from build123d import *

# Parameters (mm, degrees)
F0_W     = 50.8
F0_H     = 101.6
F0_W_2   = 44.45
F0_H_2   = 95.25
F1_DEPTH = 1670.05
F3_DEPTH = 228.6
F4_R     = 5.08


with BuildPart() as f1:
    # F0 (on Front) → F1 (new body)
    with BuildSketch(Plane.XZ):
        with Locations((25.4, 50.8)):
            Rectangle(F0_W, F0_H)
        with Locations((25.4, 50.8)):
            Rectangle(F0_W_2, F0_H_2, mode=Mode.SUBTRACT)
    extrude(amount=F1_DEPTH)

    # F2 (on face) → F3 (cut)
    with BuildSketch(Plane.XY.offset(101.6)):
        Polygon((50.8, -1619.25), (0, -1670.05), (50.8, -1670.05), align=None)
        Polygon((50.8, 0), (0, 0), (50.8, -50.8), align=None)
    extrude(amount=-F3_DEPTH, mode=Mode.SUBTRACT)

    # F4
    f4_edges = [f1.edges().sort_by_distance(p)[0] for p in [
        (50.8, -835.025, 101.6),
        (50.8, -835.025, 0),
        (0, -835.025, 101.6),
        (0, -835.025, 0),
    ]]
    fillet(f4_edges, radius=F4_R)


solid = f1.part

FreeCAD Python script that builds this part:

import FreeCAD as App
import Part
import Sketcher
from FreeCAD import Vector
Q = App.Units.Quantity


def edges_at(feature, points):
    """Names of the edges that pass closest to the given points."""
    edges = feature.Shape.Edges
    near = lambda p: min(range(len(edges)), key=lambda i: edges[i].distToShape(Part.Vertex(*p))[0])
    return sorted({f"Edge{near(p) + 1}" for p in points})


def add_polygon(sketch, points):
    """Adds a closed chain of lines whose ends are joined by coincident constraints."""
    first, n = sketch.GeometryCount, len(points)
    for a, b in zip(points, points[1:] + points[:1]):
        sketch.addGeometry(Part.LineSegment(App.Vector(*a, 0), App.Vector(*b, 0)), False)
    for i in range(n):
        sketch.addConstraint(Sketcher.Constraint("Coincident", first + i, 2, first + (i + 1) % n, 1))

doc = App.newDocument("Part")
body = doc.addObject("PartDesign::Body", "Body")

sketch1 = body.newObject("Sketcher::SketchObject", "Sketch")
sketch1.AttachmentSupport = (doc.getObject("XZ_Plane"), [""])
sketch1.MapMode = "FlatFace"
add_polygon(sketch1, [(0, 102), (0, 0), (51, 0), (51, 102)])
add_polygon(sketch1, [(48, 3), (3, 3), (3, 98), (48, 98)])
sketch1.addConstraint(Sketcher.Constraint("Vertical", 0))
sketch1.addConstraint(Sketcher.Constraint("Horizontal", 1))
sketch1.addConstraint(Sketcher.Constraint("Vertical", 2))
sketch1.addConstraint(Sketcher.Constraint("Horizontal", 3))
sketch1.addConstraint(Sketcher.Constraint("Horizontal", 4))
sketch1.addConstraint(Sketcher.Constraint("Vertical", 5))
sketch1.addConstraint(Sketcher.Constraint("Horizontal", 6))
sketch1.addConstraint(Sketcher.Constraint("Vertical", 7))
sketch1.addConstraint(Sketcher.Constraint("Coincident", 0, 2, -1, 1))
sketch1.addConstraint(Sketcher.Constraint("DistanceX", 1, 1, 1, 2, Q("2 in")))
sketch1.addConstraint(Sketcher.Constraint("DistanceY", 0, 2, 0, 1, Q("4 in")))
sketch1.addConstraint(Sketcher.Constraint("DistanceX", 4, 2, 4, 1, Q("1.75 in")))
sketch1.addConstraint(Sketcher.Constraint("DistanceY", 5, 1, 5, 2, Q("3.75 in")))
sketch1.addConstraint(Sketcher.Constraint("DistanceX", -1, 1, 4, 2, Q("0.125 in")))
sketch1.addConstraint(Sketcher.Constraint("DistanceY", -1, 1, 4, 2, Q("0.125 in")))
pad1 = body.newObject("PartDesign::Pad", "Pad")
pad1.Profile = sketch1
pad1.Length = Q("65.75 in")

sketch2 = body.newObject("Sketcher::SketchObject", "Sketch001")
sketch2.AttachmentSupport = (doc.getObject("XY_Plane"), [""])
sketch2.MapMode = "FlatFace"
sketch2.AttachmentOffset = App.Placement(Vector(0, 0, 4 * 25.4), App.Rotation())
add_polygon(sketch2, [(51, -1619), (0, -1670), (51, -1670)])
add_polygon(sketch2, [(51, 0), (0, 0), (51, -51)])
sketch2.addConstraint(Sketcher.Constraint("Horizontal", 1))
sketch2.addConstraint(Sketcher.Constraint("Vertical", 2))
sketch2.addConstraint(Sketcher.Constraint("Horizontal", 3))
sketch2.addConstraint(Sketcher.Constraint("Vertical", 5))
sketch2.addConstraint(Sketcher.Constraint("Coincident", 3, 2, -1, 1))
sketch2.addConstraint(Sketcher.Constraint("PointOnObject", 0, 2, -2))
sketch2.addConstraint(Sketcher.Constraint("Perpendicular", 0, 4))
sketch2.addConstraint(Sketcher.Constraint("Vertical", 2, 2, 4, 2))
sketch2.addConstraint(Sketcher.Constraint("Equal", 3, 2))
sketch2.addConstraint(Sketcher.Constraint("DistanceX", 1, 1, 1, 2, Q("2 in")))
sketch2.addConstraint(Sketcher.Constraint("DistanceY", 0, 2, -1, 1, Q("65.75 in")))
pocket1 = body.newObject("PartDesign::Pocket", "Pocket")
pocket1.Profile = sketch2
pocket1.Length = Q("9 in")
doc.recompute()

fillet = body.newObject("PartDesign::Fillet", "Fillet")
fillet.Base = (pocket1, edges_at(pocket1, [
    (50.8, -835.025, 101.6),
    (50.8, -835.025, 0),
    (0, -835.025, 101.6),
    (0, -835.025, 0),
]))
fillet.Radius = Q("0.2 in")

doc.recompute()
